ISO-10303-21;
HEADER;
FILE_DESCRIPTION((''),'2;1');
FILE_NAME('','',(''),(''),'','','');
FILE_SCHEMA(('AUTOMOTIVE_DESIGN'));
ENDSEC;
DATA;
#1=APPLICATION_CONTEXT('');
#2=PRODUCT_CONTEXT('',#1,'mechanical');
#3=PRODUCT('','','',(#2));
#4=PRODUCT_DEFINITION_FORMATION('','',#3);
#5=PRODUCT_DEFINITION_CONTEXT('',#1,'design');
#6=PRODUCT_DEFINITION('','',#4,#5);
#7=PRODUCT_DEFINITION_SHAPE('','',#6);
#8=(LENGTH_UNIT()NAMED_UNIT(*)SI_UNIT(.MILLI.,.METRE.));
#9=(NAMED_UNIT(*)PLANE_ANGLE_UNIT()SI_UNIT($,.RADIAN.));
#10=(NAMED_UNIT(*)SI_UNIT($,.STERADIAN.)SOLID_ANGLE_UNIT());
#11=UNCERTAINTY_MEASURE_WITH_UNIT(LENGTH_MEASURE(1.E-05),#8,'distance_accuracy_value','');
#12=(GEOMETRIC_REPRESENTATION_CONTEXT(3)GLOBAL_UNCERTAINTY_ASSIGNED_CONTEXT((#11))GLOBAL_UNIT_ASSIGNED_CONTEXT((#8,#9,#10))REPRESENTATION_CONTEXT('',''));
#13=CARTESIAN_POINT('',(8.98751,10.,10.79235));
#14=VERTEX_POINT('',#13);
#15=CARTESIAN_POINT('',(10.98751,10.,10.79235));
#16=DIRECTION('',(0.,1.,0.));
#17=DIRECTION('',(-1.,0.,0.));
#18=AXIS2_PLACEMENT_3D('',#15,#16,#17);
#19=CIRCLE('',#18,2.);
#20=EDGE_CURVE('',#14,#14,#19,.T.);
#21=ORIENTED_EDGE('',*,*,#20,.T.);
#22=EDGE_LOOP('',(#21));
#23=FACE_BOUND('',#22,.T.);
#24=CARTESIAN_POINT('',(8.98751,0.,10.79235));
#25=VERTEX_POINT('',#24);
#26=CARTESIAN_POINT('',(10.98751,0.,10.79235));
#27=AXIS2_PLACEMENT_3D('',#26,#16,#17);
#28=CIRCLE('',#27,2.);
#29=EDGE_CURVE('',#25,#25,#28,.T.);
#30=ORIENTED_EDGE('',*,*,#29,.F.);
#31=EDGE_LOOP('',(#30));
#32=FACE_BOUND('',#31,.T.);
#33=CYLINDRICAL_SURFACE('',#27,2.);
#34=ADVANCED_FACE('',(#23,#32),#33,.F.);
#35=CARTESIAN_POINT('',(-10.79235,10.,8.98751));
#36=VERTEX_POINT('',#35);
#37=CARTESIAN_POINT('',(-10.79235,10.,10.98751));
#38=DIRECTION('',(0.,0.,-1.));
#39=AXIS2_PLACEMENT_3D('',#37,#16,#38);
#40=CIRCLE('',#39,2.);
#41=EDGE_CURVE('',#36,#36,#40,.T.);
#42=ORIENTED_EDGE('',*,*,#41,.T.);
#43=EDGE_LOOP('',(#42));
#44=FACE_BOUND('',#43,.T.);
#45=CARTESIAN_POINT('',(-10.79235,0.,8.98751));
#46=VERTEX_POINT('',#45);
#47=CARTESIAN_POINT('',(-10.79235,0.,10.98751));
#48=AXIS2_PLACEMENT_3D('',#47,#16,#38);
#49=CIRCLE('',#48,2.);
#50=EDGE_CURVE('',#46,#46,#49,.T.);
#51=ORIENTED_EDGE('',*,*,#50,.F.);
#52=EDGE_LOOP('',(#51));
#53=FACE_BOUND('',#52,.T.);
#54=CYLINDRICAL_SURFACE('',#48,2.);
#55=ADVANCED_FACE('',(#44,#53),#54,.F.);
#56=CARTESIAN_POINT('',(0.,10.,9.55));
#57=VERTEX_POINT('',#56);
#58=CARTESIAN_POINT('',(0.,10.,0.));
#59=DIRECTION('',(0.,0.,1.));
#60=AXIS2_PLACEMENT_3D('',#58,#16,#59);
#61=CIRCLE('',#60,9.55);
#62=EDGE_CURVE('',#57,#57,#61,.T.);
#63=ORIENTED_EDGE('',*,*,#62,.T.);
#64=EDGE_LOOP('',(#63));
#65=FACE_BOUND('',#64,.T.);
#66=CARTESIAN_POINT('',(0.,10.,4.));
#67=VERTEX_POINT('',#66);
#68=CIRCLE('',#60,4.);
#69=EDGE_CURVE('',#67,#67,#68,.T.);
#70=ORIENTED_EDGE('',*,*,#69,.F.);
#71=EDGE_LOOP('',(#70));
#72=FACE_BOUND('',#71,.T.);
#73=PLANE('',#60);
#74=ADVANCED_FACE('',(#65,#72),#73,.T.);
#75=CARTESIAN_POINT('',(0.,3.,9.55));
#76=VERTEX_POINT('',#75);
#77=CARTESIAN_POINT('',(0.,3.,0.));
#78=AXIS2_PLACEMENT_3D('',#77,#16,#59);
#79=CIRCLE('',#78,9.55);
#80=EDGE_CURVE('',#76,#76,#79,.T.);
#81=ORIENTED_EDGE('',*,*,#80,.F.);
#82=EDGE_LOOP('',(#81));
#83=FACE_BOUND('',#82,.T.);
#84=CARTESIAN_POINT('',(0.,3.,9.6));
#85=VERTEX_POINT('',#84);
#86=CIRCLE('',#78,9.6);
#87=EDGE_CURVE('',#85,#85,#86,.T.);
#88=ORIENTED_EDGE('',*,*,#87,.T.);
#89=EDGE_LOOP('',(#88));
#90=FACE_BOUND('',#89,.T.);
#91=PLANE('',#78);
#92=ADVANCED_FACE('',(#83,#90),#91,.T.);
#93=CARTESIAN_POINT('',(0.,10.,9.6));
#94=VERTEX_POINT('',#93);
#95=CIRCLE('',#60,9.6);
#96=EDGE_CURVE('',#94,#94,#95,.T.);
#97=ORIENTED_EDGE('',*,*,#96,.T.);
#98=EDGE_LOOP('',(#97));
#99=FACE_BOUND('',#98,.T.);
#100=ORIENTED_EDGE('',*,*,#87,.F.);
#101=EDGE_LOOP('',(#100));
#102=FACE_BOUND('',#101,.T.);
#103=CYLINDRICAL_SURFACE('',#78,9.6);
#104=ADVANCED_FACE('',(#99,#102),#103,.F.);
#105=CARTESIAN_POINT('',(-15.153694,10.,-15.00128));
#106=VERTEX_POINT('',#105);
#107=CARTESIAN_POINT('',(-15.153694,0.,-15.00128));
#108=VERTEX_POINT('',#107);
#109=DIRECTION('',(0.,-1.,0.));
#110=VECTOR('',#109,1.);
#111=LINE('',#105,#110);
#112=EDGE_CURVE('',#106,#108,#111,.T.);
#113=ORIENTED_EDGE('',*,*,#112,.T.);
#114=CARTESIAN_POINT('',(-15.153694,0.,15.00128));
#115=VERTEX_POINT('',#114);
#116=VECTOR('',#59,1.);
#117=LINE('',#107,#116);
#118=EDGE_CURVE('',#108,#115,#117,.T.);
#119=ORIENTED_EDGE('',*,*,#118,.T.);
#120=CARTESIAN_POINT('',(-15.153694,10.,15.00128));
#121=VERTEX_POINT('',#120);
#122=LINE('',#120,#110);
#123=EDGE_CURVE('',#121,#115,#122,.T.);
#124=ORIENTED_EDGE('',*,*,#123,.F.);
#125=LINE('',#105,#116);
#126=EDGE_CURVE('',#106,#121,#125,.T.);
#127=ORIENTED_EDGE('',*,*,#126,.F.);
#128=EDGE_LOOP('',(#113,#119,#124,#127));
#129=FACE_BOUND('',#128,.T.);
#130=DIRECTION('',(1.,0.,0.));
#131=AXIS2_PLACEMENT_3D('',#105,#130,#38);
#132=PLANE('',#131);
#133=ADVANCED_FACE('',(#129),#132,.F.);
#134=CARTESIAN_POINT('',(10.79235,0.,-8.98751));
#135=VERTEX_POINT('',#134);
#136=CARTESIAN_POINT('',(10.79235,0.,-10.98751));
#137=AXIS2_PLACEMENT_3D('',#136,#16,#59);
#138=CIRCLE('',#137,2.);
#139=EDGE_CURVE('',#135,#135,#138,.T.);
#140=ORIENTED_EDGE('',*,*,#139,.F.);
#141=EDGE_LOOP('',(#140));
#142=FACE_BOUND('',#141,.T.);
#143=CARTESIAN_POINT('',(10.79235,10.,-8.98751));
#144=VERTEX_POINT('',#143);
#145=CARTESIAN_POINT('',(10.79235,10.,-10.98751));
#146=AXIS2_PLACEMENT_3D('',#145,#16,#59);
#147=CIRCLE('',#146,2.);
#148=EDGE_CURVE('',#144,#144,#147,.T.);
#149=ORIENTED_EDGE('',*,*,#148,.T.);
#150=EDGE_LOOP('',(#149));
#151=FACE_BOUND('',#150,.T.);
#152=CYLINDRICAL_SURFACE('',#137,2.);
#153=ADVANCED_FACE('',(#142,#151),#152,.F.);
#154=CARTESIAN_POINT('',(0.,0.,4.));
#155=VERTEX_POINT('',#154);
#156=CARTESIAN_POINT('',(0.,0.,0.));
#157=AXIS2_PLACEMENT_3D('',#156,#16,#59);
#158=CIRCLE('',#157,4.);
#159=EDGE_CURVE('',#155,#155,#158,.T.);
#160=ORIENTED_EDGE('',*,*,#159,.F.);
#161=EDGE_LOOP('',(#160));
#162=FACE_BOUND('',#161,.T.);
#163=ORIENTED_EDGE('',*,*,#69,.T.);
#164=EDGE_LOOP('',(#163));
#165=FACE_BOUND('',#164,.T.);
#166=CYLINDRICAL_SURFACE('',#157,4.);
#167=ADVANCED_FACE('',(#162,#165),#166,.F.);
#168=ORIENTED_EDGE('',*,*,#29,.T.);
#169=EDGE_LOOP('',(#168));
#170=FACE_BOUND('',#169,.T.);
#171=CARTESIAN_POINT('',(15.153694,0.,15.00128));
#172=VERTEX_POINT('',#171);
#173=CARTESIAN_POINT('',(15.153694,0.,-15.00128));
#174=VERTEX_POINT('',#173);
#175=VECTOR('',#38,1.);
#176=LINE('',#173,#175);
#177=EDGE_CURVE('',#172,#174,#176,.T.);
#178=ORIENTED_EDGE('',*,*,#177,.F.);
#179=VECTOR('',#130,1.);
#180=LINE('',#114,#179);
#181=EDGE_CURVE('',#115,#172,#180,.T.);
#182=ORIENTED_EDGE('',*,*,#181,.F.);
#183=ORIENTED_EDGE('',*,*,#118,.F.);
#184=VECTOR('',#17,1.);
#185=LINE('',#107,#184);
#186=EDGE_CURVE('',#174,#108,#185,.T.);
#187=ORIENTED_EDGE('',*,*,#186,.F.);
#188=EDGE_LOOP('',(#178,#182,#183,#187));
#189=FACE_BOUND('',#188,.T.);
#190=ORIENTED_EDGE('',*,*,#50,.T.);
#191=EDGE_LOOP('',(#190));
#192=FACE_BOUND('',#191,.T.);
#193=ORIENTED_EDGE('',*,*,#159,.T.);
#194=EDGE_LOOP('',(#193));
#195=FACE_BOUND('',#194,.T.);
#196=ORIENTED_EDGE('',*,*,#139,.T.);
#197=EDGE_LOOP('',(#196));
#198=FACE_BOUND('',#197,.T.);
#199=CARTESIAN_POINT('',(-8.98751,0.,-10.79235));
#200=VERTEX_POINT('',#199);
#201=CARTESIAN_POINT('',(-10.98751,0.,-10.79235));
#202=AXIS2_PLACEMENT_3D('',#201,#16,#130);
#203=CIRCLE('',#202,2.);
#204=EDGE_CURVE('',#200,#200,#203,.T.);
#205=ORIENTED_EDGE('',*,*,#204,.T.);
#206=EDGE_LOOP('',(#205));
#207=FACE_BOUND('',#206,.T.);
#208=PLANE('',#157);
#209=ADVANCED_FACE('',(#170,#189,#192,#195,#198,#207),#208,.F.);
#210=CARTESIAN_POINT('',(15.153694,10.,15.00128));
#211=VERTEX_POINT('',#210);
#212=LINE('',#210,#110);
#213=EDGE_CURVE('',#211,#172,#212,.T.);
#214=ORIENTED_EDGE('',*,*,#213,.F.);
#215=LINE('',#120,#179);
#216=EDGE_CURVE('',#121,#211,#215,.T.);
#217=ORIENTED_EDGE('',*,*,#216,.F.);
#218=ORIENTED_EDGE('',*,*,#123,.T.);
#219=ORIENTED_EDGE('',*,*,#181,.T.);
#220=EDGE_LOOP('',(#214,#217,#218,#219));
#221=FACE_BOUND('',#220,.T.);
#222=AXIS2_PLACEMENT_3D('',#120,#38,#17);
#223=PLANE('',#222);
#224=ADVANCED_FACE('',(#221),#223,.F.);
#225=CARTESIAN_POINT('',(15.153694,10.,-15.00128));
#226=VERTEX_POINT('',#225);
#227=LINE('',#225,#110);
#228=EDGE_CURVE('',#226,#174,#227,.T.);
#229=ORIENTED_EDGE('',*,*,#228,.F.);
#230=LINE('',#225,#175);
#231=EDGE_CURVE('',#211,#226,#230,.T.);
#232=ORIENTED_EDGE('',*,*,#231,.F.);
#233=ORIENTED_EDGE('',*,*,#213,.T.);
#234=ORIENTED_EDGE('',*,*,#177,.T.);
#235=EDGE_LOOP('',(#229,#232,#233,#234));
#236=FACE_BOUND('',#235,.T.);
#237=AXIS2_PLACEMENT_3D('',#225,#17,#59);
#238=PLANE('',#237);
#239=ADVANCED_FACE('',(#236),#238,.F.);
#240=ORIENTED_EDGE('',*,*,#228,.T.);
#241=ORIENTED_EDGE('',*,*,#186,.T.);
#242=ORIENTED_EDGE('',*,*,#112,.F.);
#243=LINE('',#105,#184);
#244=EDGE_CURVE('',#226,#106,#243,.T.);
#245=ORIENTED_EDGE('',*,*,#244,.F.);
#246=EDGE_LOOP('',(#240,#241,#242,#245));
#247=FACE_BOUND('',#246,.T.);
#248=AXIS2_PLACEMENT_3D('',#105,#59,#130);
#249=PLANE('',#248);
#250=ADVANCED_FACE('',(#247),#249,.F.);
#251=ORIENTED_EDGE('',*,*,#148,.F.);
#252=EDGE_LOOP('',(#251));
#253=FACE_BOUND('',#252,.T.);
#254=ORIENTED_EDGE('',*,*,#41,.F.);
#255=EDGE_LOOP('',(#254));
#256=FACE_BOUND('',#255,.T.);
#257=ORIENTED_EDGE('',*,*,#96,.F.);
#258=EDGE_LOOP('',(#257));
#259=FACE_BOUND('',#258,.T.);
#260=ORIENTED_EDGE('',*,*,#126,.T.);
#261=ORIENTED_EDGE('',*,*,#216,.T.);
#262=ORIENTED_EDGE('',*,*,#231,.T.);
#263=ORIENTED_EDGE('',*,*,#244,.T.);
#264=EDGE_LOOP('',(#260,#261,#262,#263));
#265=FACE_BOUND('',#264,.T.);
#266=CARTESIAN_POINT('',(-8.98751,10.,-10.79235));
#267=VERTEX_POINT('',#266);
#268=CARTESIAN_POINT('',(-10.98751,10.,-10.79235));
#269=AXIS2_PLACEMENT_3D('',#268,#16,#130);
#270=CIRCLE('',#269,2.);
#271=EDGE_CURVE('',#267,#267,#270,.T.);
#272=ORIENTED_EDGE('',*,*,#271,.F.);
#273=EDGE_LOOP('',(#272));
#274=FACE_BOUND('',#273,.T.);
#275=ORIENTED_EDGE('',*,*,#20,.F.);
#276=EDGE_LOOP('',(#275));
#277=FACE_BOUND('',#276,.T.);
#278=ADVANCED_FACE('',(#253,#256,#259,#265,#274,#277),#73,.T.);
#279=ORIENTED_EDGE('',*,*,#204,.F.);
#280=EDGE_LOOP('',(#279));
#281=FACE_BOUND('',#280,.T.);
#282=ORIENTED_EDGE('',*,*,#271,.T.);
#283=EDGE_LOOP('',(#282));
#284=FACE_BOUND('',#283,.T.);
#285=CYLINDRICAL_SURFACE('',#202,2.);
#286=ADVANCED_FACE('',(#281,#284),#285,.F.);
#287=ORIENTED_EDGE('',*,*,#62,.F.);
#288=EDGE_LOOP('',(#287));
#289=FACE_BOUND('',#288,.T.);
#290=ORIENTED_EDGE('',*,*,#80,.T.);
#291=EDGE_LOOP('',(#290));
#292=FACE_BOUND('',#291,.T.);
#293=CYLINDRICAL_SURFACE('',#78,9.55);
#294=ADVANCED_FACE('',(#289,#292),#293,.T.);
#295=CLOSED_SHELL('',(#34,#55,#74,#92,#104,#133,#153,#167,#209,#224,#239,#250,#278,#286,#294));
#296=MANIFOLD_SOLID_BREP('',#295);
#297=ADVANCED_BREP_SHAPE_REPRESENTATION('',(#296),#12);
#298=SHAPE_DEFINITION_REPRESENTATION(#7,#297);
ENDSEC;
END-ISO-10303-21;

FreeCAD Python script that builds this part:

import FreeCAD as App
import Part
import Sketcher
from FreeCAD import Vector
Q = App.Units.Quantity

doc = App.newDocument("Part")
body = doc.addObject("PartDesign::Body", "Body")

# Sketch on XZ plane
sketch1 = body.newObject("Sketcher::SketchObject", "Sketch")
sketch1.AttachmentSupport = (doc.getObject("XZ_Plane"), [""])
sketch1.MapMode = "FlatFace"
sketch1.addGeometry(Part.LineSegment(Vector(-15, -15, 0), Vector(-15, 15, 0)), False)
sketch1.addGeometry(Part.LineSegment(Vector(-15, 15, 0), Vector(15, 15, 0)), False)
sketch1.addGeometry(Part.LineSegment(Vector(15, 15, 0), Vector(15, -15, 0)), False)
sketch1.addGeometry(Part.LineSegment(Vector(15, -15, 0), Vector(-15, -15, 0)), False)
sketch1.addConstraint(Sketcher.Constraint("Coincident", 0, 2, 1, 1))
sketch1.addConstraint(Sketcher.Constraint("Coincident", 1, 2, 2, 1))
sketch1.addConstraint(Sketcher.Constraint("Coincident", 2, 2, 3, 1))
sketch1.addConstraint(Sketcher.Constraint("Coincident", 3, 2, 0, 1))
sketch1.addConstraint(Sketcher.Constraint("Vertical", 0))
sketch1.addConstraint(Sketcher.Constraint("Horizontal", 1))
sketch1.addConstraint(Sketcher.Constraint("Vertical", 2))
sketch1.addConstraint(Sketcher.Constraint("Horizontal", 3))
sketch1.addConstraint(Sketcher.Constraint("Symmetric", 0, 2, 2, 2, -1, 1))
sketch1.addConstraint(Sketcher.Constraint("DistanceY", 0, 1, 0, 2, Q("30.002561 mm")))
sketch1.addConstraint(Sketcher.Constraint("DistanceX", 1, 1, 1, 2, Q("30.307387 mm")))
pad1 = body.newObject("PartDesign::Pad", "Pad")
pad1.Profile = sketch1
pad1.Length = 10
pad1.Reversed = True

# Sketch on XZ plane
sketch2 = body.newObject("Sketcher::SketchObject", "Sketch001")
sketch2.AttachmentSupport = (doc.getObject("XZ_Plane"), [""])
sketch2.MapMode = "FlatFace"
sketch2.AttachmentOffset = App.Placement(Vector(0, 0, -10), App.Rotation())
sketch2.addGeometry(Part.Circle(Vector(0, 0, 0), Vector(0, 0, 1), 10), False)
sketch2.addGeometry(Part.Circle(Vector(0, 0, 0), Vector(0, 0, 1), 10), False)
sketch2.addConstraint(Sketcher.Constraint("Coincident", 0, 3, -1, 1))
sketch2.addConstraint(Sketcher.Constraint("Coincident", 1, 3, -1, 1))
sketch2.addConstraint(Sketcher.Constraint("Diameter", 0, Q("19.2 mm")))
sketch2.addConstraint(Sketcher.Constraint("Diameter", 1, Q("19.1 mm")))
pocket1 = body.newObject("PartDesign::Pocket", "Pocket")
pocket1.Profile = sketch2
pocket1.Length = 7
pocket1.Reversed = True

# Sketch on XZ plane
sketch3 = body.newObject("Sketcher::SketchObject", "Sketch002")
sketch3.AttachmentSupport = (doc.getObject("XZ_Plane"), [""])
sketch3.MapMode = "FlatFace"
sketch3.AttachmentOffset = App.Placement(Vector(0, 0, -10), App.Rotation())
sketch3.addGeometry(Part.Circle(Vector(0, 0, 0), Vector(0, 0, 1), 4), False)
sketch3.addConstraint(Sketcher.Constraint("Coincident", 0, 3, -1, 1))
sketch3.addConstraint(Sketcher.Constraint("Diameter", 0, Q("8 mm")))
pocket2 = body.newObject("PartDesign::Pocket", "Pocket001")
pocket2.Profile = sketch3
pocket2.Length = 10
pocket2.Reversed = True

# Sketch on XZ plane
sketch4 = body.newObject("Sketcher::SketchObject", "Sketch003")
sketch4.AttachmentSupport = (doc.getObject("XZ_Plane"), [""])
sketch4.MapMode = "FlatFace"
sketch4.AttachmentOffset = App.Placement(Vector(0, 0, -10), App.Rotation())
sketch4.addGeometry(Part.Circle(Vector(10.8, -11, 0), Vector(0, 0, 1), 2), False)
sketch4.addConstraint(Sketcher.Constraint("Diameter", 0, Q("4 mm")))
sketch4.addConstraint(Sketcher.Constraint("DistanceX", -1, 1, 0, 3, Q("10.79235 mm")))
sketch4.addConstraint(Sketcher.Constraint("DistanceY", 0, 3, -1, 1, Q("10.98751 mm")))
pocket3 = body.newObject("PartDesign::Pocket", "Pocket002")
pocket3.Profile = sketch4
pocket3.Length = 10
pocket3.Reversed = True
doc.recompute()

polarpattern = body.newObject("PartDesign::PolarPattern", "PolarPattern")
polarpattern.Originals = [pocket3]
polarpattern.Axis = (doc.getObject("Y_Axis"), [""])
polarpattern.Angle = 360
polarpattern.Occurrences = 4
body.Tip = polarpattern

doc.recompute()
